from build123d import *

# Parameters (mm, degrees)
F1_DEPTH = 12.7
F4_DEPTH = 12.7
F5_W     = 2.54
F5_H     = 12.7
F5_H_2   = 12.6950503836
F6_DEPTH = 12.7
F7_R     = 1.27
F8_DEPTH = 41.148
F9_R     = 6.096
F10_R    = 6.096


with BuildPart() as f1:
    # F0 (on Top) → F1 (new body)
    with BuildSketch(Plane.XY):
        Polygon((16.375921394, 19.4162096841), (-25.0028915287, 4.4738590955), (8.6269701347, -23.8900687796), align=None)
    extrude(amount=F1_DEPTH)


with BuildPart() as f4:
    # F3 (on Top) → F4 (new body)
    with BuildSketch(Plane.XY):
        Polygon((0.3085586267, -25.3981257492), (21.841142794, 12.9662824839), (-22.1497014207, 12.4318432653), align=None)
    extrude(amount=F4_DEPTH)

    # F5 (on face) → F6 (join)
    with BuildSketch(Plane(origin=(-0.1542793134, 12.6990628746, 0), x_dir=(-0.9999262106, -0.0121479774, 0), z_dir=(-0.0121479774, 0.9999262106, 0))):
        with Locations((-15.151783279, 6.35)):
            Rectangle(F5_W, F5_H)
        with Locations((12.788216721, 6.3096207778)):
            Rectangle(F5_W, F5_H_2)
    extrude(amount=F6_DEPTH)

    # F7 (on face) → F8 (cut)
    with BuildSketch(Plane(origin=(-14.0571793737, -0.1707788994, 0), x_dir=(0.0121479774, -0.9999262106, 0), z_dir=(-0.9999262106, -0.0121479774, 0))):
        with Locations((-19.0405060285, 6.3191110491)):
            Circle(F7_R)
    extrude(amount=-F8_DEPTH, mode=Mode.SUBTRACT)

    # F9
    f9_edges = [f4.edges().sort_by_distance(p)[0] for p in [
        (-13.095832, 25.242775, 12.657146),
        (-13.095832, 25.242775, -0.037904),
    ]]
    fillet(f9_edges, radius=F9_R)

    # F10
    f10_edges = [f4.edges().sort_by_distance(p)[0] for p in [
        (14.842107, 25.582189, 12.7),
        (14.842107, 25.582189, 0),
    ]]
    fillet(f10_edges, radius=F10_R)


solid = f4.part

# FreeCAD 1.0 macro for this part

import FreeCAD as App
import Part
import Sketcher

V = App.Vector
Q = App.Units.Quantity


def edges_at(feature, points):
    """Names of the edges that pass closest to the given points."""
    edges = feature.Shape.Edges
    near = lambda p: min(range(len(edges)), key=lambda i: edges[i].distToShape(Part.Vertex(*p))[0])
    return sorted({f"Edge{near(p) + 1}" for p in points})

doc = App.newDocument("Part")
params = doc.addObject("Spreadsheet::Sheet", "Params")
for row, (alias, value) in enumerate([
    ("pad1_length", "0.5 in"),
    ("pad2_length", "0.5 in"),
    ("sketch3_width", "0.1 in"),
    ("sketch3_height", "0.5 in"),
    ("pad3_length", "0.5 in"),
    ("sketch4_diameter", "0.1 in"),
    ("pocket1_length", "1.62 in"),
    ("fillet_radius", "0.24 in"),
    ("fillet2_radius", "0.24 in"),
], start=1):
    params.set(f"A{row}", alias)
    params.set(f"B{row}", "=" + value)
    params.setAlias(f"B{row}", alias)

body = doc.addObject("PartDesign::Body", "Body")

# Sketch on XY plane
sketch1 = body.newObject("Sketcher::SketchObject", "Sketch")
sketch1.AttachmentSupport = (doc.getObject("XY_Plane"), [""])
sketch1.MapMode = "FlatFace"
sketch1.addGeometry(Part.LineSegment(V(16, 19, 0), V(-25, 4, 0)), False)
sketch1.addGeometry(Part.LineSegment(V(-25, 4, 0), V(9, -24, 0)), False)
sketch1.addGeometry(Part.LineSegment(V(9, -24, 0), V(16, 19, 0)), False)
sketch1.addConstraint(Sketcher.Constraint("Coincident", 0, 2, 1, 1))
sketch1.addConstraint(Sketcher.Constraint("Coincident", 1, 2, 2, 1))
sketch1.addConstraint(Sketcher.Constraint("Coincident", 2, 2, 0, 1))
sketch1.addConstraint(Sketcher.Constraint("Equal", 0, 1))
sketch1.addConstraint(Sketcher.Constraint("Equal", 1, 2))
sketch1.addConstraint(Sketcher.Constraint("Distance", 0, Q("43.994091 mm")))
sketch1.addConstraint(Sketcher.Constraint("DistanceX", 0, 2, -1, 1, Q("25.002892 mm")))
sketch1.addConstraint(Sketcher.Constraint("DistanceY", -1, 1, 0, 2, Q("4.473859 mm")))
sketch1.addConstraint(Sketcher.Constraint("DistanceX", -1, 1, 1, 2, Q("8.62697 mm")))
pad1 = body.newObject("PartDesign::Pad", "Pad")
pad1.Profile = sketch1
pad1.setExpression("Length", "Params.pad1_length")
body2 = doc.addObject("PartDesign::Body", "Body001")

# Sketch on XY plane
sketch2 = body2.newObject("Sketcher::SketchObject", "Sketch001")
sketch2.AttachmentSupport = (doc.getObject("XY_Plane001"), [""])
sketch2.MapMode = "FlatFace"
sketch2.addGeometry(Part.LineSegment(V(0, -25, 0), V(22, 13, 0)), False)
sketch2.addGeometry(Part.LineSegment(V(22, 13, 0), V(-22, 12, 0)), False)
sketch2.addGeometry(Part.LineSegment(V(-22, 12, 0), V(0, -25, 0)), False)
sketch2.addConstraint(Sketcher.Constraint("Coincident", 0, 2, 1, 1))
sketch2.addConstraint(Sketcher.Constraint("Coincident", 1, 2, 2, 1))
sketch2.addConstraint(Sketcher.Constraint("Coincident", 2, 2, 0, 1))
sketch2.addConstraint(Sketcher.Constraint("Equal", 0, 1))
sketch2.addConstraint(Sketcher.Constraint("Equal", 1, 2))
sketch2.addConstraint(Sketcher.Constraint("DistanceX", 1, 2, -1, 1, Q("22.149701 mm")))
sketch2.addConstraint(Sketcher.Constraint("Distance", 0, Q("43.994091 mm")))
sketch2.addConstraint(Sketcher.Constraint("DistanceX", -1, 1, 2, 2, Q("0.308559 mm")))
sketch2.addConstraint(Sketcher.Constraint("DistanceY", -1, 1, 0, 2, Q("12.966282 mm")))
pad2 = body2.newObject("PartDesign::Pad", "Pad001")
pad2.Profile = sketch2
pad2.setExpression("Length", "Params.pad2_length")

# Sketch on an angled plane
sketch3 = body2.newObject("Sketcher::SketchObject", "Sketch002")
sketch3.Placement = App.Placement(V(-0.154279, 12.699063, 0), App.Rotation(V(-0.999926211, -0.012147977, 0), V(0, 0, 1.000000001), V(-0.012147977, 0.999926211, 0), "ZXY"))
sketch3.addGeometry(Part.LineSegment(V(-16.4, 12.7, 0), V(-16.4, 0, 0)), False)
sketch3.addGeometry(Part.LineSegment(V(-16.4, 0, 0), V(-13.9, 0, 0)), False)
sketch3.addGeometry(Part.LineSegment(V(-13.9, 0, 0), V(-13.9, 12.7, 0)), False)
sketch3.addGeometry(Part.LineSegment(V(-13.9, 12.7, 0), V(-16.4, 12.7, 0)), False)
sketch3.addGeometry(Part.LineSegment(V(11.5, 12.7, 0), V(11.5, 0, 0)), False)
sketch3.addGeometry(Part.LineSegment(V(11.5, 0, 0), V(14.1, 0, 0)), False)
sketch3.addGeometry(Part.LineSegment(V(14.1, 0, 0), V(14.1, 12.7, 0)), False)
sketch3.addGeometry(Part.LineSegment(V(14.1, 12.7, 0), V(11.5, 12.7, 0)), False)
sketch3.addConstraint(Sketcher.Constraint("Coincident", 0, 2, 1, 1))
sketch3.addConstraint(Sketcher.Constraint("Coincident", 1, 2, 2, 1))
sketch3.addConstraint(Sketcher.Constraint("Coincident", 2, 2, 3, 1))
sketch3.addConstraint(Sketcher.Constraint("Coincident", 3, 2, 0, 1))
sketch3.addConstraint(Sketcher.Constraint("Coincident", 4, 2, 5, 1))
sketch3.addConstraint(Sketcher.Constraint("Coincident", 5, 2, 6, 1))
sketch3.addConstraint(Sketcher.Constraint("Coincident", 6, 2, 7, 1))
sketch3.addConstraint(Sketcher.Constraint("Coincident", 7, 2, 4, 1))
sketch3.addConstraint(Sketcher.Constraint("Vertical", 0))
sketch3.addConstraint(Sketcher.Constraint("Horizontal", 1))
sketch3.addConstraint(Sketcher.Constraint("Vertical", 2))
sketch3.addConstraint(Sketcher.Constraint("Horizontal", 3))
sketch3.addConstraint(Sketcher.Constraint("Vertical", 4))
sketch3.addConstraint(Sketcher.Constraint("Horizontal", 5))
sketch3.addConstraint(Sketcher.Constraint("Vertical", 6))
sketch3.addConstraint(Sketcher.Constraint("Horizontal", 7))
sketch3.addConstraint(Sketcher.Constraint("PointOnObject", 0, 2, -1))
sketch3.addConstraint(Sketcher.Constraint("Equal", 3, 5))
sketch3.addConstraint(Sketcher.Constraint("DistanceX", 1, 1, 1, 2, Q("0.1 in")))
sketch3.addConstraint(Sketcher.Constraint("DistanceY", 0, 2, 0, 1, Q("0.5 in")))
sketch3.addConstraint(Sketcher.Constraint("DistanceX", 1, 2, 4, 2, Q("1 in")))
sketch3.addConstraint(Sketcher.Constraint("DistanceY", 4, 2, 4, 1, Q("12.69505 mm")))
sketch3.addConstraint(Sketcher.Constraint("DistanceX", 0, 2, -1, 1, Q("16.421783 mm")))
sketch3.addConstraint(Sketcher.Constraint("DistanceY", 4, 2, -1, 1, Q("0.037904 mm")))
sketch3.setExpression("Constraints[18]", "Params.sketch3_width")
sketch3.setExpression("Constraints[19]", "Params.sketch3_height")
pad3 = body2.newObject("PartDesign::Pad", "Pad002")
pad3.Profile = sketch3
pad3.setExpression("Length", "Params.pad3_length")

# Sketch on an angled plane
sketch4 = body2.newObject("Sketcher::SketchObject", "Sketch003")
sketch4.Placement = App.Placement(V(-14.057179, -0.170779, 0), App.Rotation(V(0.012147977, -0.999926211, 0), V(0, 0, 1.000000001), V(-0.999926211, -0.012147977, 0), "ZXY"))
sketch4.addGeometry(Part.Circle(V(-19, 6.3, 0), V(0, 0, 1), 1.3), False)
sketch4.addConstraint(Sketcher.Constraint("Diameter", 0, Q("0.1 in")))
sketch4.addConstraint(Sketcher.Constraint("DistanceY", -1, 1, 0, 3, Q("6.319111 mm")))
sketch4.addConstraint(Sketcher.Constraint("DistanceX", 0, 3, -1, 1, Q("19.040506 mm")))
sketch4.setExpression("Constraints[0]", "Params.sketch4_diameter")
pocket1 = body2.newObject("PartDesign::Pocket", "Pocket")
pocket1.Profile = sketch4
pocket1.setExpression("Length", "Params.pocket1_length")
doc.recompute()

fillet = body2.newObject("PartDesign::Fillet", "Fillet")
fillet.Base = (pocket1, edges_at(pocket1, [(-13.096, 25.243, 12.657), (-13.096, 25.243, -0.038)]))
fillet.setExpression("Radius", "Params.fillet_radius")
doc.recompute()

fillet2 = body2.newObject("PartDesign::Fillet", "Fillet001")
fillet2.Base = (fillet, edges_at(fillet, [(14.842, 25.582, 12.7), (14.842, 25.582, 0)]))
fillet2.setExpression("Radius", "Params.fillet2_radius")
body.Visibility = False

doc.recompute()
